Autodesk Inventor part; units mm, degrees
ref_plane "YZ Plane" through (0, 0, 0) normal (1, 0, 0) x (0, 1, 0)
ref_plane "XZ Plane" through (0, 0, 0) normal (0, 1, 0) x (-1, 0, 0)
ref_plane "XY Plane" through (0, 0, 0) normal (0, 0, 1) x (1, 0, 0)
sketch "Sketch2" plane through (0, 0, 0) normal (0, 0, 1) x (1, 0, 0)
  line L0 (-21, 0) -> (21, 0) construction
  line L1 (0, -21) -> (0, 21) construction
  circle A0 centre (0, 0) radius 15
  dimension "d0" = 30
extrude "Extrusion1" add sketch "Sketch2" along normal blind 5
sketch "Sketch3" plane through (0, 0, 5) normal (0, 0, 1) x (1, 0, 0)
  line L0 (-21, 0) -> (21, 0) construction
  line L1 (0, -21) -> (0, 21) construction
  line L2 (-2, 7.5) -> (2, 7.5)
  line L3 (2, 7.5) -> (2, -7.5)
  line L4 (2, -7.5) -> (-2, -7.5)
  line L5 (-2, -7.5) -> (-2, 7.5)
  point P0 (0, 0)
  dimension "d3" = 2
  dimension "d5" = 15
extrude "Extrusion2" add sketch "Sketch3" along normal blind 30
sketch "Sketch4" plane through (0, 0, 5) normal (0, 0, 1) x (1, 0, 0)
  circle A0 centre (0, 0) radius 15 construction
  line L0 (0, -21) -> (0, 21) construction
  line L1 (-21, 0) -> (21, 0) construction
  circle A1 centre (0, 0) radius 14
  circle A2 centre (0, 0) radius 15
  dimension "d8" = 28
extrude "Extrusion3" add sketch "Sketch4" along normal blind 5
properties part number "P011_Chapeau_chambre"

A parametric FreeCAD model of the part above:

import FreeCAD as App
import Part
import Sketcher


def add_polygon(sketch, points):
    """Adds a closed chain of lines whose ends are joined by coincident constraints."""
    first, n = sketch.GeometryCount, len(points)
    for a, b in zip(points, points[1:] + points[:1]):
        sketch.addGeometry(Part.LineSegment(App.Vector(*a, 0), App.Vector(*b, 0)), False)
    for i in range(n):
        sketch.addConstraint(Sketcher.Constraint("Coincident", first + i, 2, first + (i + 1) % n, 1))

doc = App.newDocument("Part")
params = doc.addObject("Spreadsheet::Sheet", "Params")
for row, (alias, value) in enumerate([
    ("sketch1_diameter", "30 mm"),
    ("pad1_length", "5 mm"),
    ("sketch2_height", "15 mm"),
    ("pad2_length", "30 mm"),
    ("sketch3_diameter", "28 mm"),
    ("sketch3_diameter2", "30 mm"),
    ("pad3_length", "5 mm"),
], start=1):
    params.set(f"A{row}", alias)
    params.set(f"B{row}", "=" + value)
    params.setAlias(f"B{row}", alias)

body = doc.addObject("PartDesign::Body", "Body")

# Sketch on XY plane
sketch1 = body.newObject("Sketcher::SketchObject", "Sketch")
sketch1.AttachmentSupport = (doc.getObject("XY_Plane"), [""])
sketch1.MapMode = "FlatFace"
sketch1.addGeometry(Part.Circle(App.Vector(0, 0, 0), App.Vector(0, 0, 1), 15), False)
sketch1.addConstraint(Sketcher.Constraint("Coincident", 0, 3, -1, 1))
sketch1.addConstraint(Sketcher.Constraint("Diameter", 0, 30.0))
sketch1.setExpression("Constraints[1]", "Params.sketch1_diameter")
pad1 = body.newObject("PartDesign::Pad", "Pad")
pad1.Profile = sketch1
pad1.setExpression("Length", "Params.pad1_length")

# Sketch on XY plane
sketch2 = body.newObject("Sketcher::SketchObject", "Sketch001")
sketch2.AttachmentSupport = (doc.getObject("XY_Plane"), [""])
sketch2.MapMode = "FlatFace"
sketch2.AttachmentOffset = App.Placement(App.Vector(0, 0, 5), App.Rotation())
add_polygon(sketch2, [(2, 7.5), (-2, 7.5), (-2, -7.5), (2, -7.5)])  # lines 0-3
sketch2.addConstraint(Sketcher.Constraint("Horizontal", 0))
sketch2.addConstraint(Sketcher.Constraint("Vertical", 1))
sketch2.addConstraint(Sketcher.Constraint("Horizontal", 2))
sketch2.addConstraint(Sketcher.Constraint("Vertical", 3))
sketch2.addConstraint(Sketcher.Constraint("Symmetric", 0, 2, 2, 2, -1, 1))
sketch2.addConstraint(Sketcher.Constraint("DistanceY", 1, 2, 1, 1, 15.0))
sketch2.addConstraint(Sketcher.Constraint("DistanceX", 0, 2, -1, 1, 2.0))
sketch2.setExpression("Constraints[9]", "Params.sketch2_height")
pad2 = body.newObject("PartDesign::Pad", "Pad001")
pad2.Profile = sketch2
pad2.setExpression("Length", "Params.pad2_length")

# Sketch on XY plane
sketch3 = body.newObject("Sketcher::SketchObject", "Sketch002")
sketch3.AttachmentSupport = (doc.getObject("XY_Plane"), [""])
sketch3.MapMode = "FlatFace"
sketch3.AttachmentOffset = App.Placement(App.Vector(0, 0, 5), App.Rotation())
sketch3.addGeometry(Part.Circle(App.Vector(0, 0, 0), App.Vector(0, 0, 1), 15), False)
sketch3.addGeometry(Part.Circle(App.Vector(0, 0, 0), App.Vector(0, 0, 1), 14), False)
sketch3.addConstraint(Sketcher.Constraint("Coincident", 0, 3, -1, 1))
sketch3.addConstraint(Sketcher.Constraint("Coincident", 1, 3, -1, 1))
sketch3.addConstraint(Sketcher.Constraint("Diameter", 1, 28.0))
sketch3.addConstraint(Sketcher.Constraint("Diameter", 0, 30.0))
sketch3.setExpression("Constraints[2]", "Params.sketch3_diameter")
sketch3.setExpression("Constraints[3]", "Params.sketch3_diameter2")
pad3 = body.newObject("PartDesign::Pad", "Pad002")
pad3.Profile = sketch3
pad3.setExpression("Length", "Params.pad3_length")

doc.recompute()
